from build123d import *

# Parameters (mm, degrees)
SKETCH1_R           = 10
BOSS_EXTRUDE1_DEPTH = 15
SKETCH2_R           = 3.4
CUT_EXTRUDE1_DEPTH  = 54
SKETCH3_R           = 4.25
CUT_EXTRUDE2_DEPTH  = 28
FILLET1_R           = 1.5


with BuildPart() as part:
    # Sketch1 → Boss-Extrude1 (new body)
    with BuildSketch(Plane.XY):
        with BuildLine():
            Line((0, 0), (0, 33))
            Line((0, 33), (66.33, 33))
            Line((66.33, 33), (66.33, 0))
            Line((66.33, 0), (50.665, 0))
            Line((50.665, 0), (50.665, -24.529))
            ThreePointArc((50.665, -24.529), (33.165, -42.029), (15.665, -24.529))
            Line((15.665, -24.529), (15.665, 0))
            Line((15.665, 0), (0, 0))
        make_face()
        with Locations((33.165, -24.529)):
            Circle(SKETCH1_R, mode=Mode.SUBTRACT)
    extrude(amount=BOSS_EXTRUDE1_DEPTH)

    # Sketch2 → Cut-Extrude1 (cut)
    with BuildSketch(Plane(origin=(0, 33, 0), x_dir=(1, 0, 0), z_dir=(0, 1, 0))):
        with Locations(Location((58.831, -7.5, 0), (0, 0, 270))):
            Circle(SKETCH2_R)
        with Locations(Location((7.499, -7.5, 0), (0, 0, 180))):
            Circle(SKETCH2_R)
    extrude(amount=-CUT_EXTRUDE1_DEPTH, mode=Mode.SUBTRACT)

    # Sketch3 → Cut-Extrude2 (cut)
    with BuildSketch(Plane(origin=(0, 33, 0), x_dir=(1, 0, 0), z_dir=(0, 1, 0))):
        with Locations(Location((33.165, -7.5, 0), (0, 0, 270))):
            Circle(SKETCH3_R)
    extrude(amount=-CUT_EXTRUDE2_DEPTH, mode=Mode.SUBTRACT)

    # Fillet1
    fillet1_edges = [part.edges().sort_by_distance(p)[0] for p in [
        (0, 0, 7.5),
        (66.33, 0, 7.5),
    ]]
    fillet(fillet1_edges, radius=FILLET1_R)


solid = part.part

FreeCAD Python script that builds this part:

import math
import FreeCAD as App
import Part
import Sketcher
from FreeCAD import Vector
Q = App.Units.Quantity


def edges_at(feature, points):
    """Names of the edges that pass closest to the given points."""
    edges = feature.Shape.Edges
    near = lambda p: min(range(len(edges)), key=lambda i: edges[i].distToShape(Part.Vertex(*p))[0])
    return sorted({f"Edge{near(p) + 1}" for p in points})

doc = App.newDocument("Part")
body = doc.addObject("PartDesign::Body", "Body")

# Sketch on XY plane
sketch1 = body.newObject("Sketcher::SketchObject", "Sketch")
sketch1.AttachmentSupport = (doc.getObject("XY_Plane"), [""])
sketch1.MapMode = "FlatFace"
sketch1.addGeometry([
    Part.LineSegment(Vector(0, 33, 0), Vector(0, 0, 0)),  # 0
    Part.LineSegment(Vector(0, 0, 0), Vector(15.665, 0, 0)),  # 1
    Part.LineSegment(Vector(15.665, 0, 0), Vector(15.665, -24.529, 0)),  # 2
    Part.ArcOfCircle(Part.Circle(Vector(33.165, -24.529, 0), Vector(0, 0, 1), 17.5), math.radians(180), math.radians(360)),  # 3
    Part.LineSegment(Vector(50.665, -24.529, 0), Vector(50.665, 0, 0)),  # 4
    Part.LineSegment(Vector(50.665, 0, 0), Vector(66.33, 0, 0)),  # 5
    Part.LineSegment(Vector(66.33, 0, 0), Vector(66.33, 33, 0)),  # 6
    Part.LineSegment(Vector(66.33, 33, 0), Vector(0, 33, 0)),  # 7
    Part.Circle(Vector(33.165, -24.529, 0), Vector(0, 0, 1), 10),  # 8
], False)
sketch1.addConstraint([
    Sketcher.Constraint("Coincident", 0, 2, 1, 1),
    Sketcher.Constraint("Coincident", 1, 2, 2, 1),
    Sketcher.Constraint("Tangent", 2, 2, 3, 1),
    Sketcher.Constraint("Tangent", 3, 2, 4, 1),
    Sketcher.Constraint("Coincident", 4, 2, 5, 1),
    Sketcher.Constraint("Coincident", 5, 2, 6, 1),
    Sketcher.Constraint("Coincident", 6, 2, 7, 1),
    Sketcher.Constraint("Coincident", 7, 2, 0, 1),
    Sketcher.Constraint("Vertical", 0),
    Sketcher.Constraint("Horizontal", 1),
    Sketcher.Constraint("Vertical", 2),
    Sketcher.Constraint("Vertical", 4),
    Sketcher.Constraint("Horizontal", 5),
    Sketcher.Constraint("Vertical", 6),
    Sketcher.Constraint("Horizontal", 7),
    Sketcher.Constraint("Coincident", 0, 2, -1, 1),
    Sketcher.Constraint("Coincident", 8, 3, 3, 3),
    Sketcher.Constraint("PointOnObject", 4, 2, -1),
    Sketcher.Constraint("Equal", 1, 5),
    Sketcher.Constraint("Diameter", 8, Q("20 mm")),
    Sketcher.Constraint("Radius", 3, Q("17.5 mm")),
    Sketcher.Constraint("DistanceY", 0, 2, 0, 1, Q("33 mm")),
    Sketcher.Constraint("DistanceX", 7, 2, 7, 1, Q("66.33 mm")),
    Sketcher.Constraint("DistanceY", 2, 2, 2, 1, Q("24.529 mm")),
])
pad1 = body.newObject("PartDesign::Pad", "Pad")
pad1.Profile = sketch1
pad1.Length = 15

# Sketch on XZ plane
sketch2 = body.newObject("Sketcher::SketchObject", "Sketch001")
sketch2.AttachmentSupport = (doc.getObject("XZ_Plane"), [""])
sketch2.MapMode = "FlatFace"
sketch2.AttachmentOffset = App.Placement(Vector(0, 0, -33), App.Rotation())
sketch2.addGeometry([
    Part.Circle(Vector(58.831, 7.5, 0), Vector(0, 0, 1), 3.4),
    Part.Circle(Vector(7.499, 7.5, 0), Vector(0, 0, 1), 3.4),
], False)
sketch2.addConstraint([
    Sketcher.Constraint("Equal", 0, 1),
    Sketcher.Constraint("Horizontal", 0, 3, 1, 3),
    Sketcher.Constraint("Diameter", 0, Q("6.8 mm")),
    Sketcher.Constraint("DistanceY", -1, 1, 0, 3, Q("7.5 mm")),
    Sketcher.Constraint("DistanceX", -1, 1, 0, 3, Q("58.831 mm")),
    Sketcher.Constraint("DistanceX", -1, 1, 1, 3, Q("7.499 mm")),
])
pocket1 = body.newObject("PartDesign::Pocket", "Pocket")
pocket1.Profile = sketch2
pocket1.Length = 54
pocket1.Reversed = True

# Sketch on XZ plane
sketch3 = body.newObject("Sketcher::SketchObject", "Sketch002")
sketch3.AttachmentSupport = (doc.getObject("XZ_Plane"), [""])
sketch3.MapMode = "FlatFace"
sketch3.AttachmentOffset = App.Placement(Vector(0, 0, -33), App.Rotation())
sketch3.addGeometry(Part.Circle(Vector(33.165, 7.5, 0), Vector(0, 0, 1), 4.25), False)
sketch3.addConstraint([
    Sketcher.Constraint("Diameter", 0, Q("8.5 mm")),
    Sketcher.Constraint("DistanceY", -1, 1, 0, 3, Q("7.5 mm")),
    Sketcher.Constraint("DistanceX", -1, 1, 0, 3, Q("33.165 mm")),
])
pocket2 = body.newObject("PartDesign::Pocket", "Pocket001")
pocket2.Profile = sketch3
pocket2.Length = 28
pocket2.Reversed = True
doc.recompute()

fillet = body.newObject("PartDesign::Fillet", "Fillet")
fillet.Base = (pocket2, edges_at(pocket2, [(0, 0, 7.5), (66.33, 0, 7.5)]))
fillet.Radius = 1.5

doc.recompute()
